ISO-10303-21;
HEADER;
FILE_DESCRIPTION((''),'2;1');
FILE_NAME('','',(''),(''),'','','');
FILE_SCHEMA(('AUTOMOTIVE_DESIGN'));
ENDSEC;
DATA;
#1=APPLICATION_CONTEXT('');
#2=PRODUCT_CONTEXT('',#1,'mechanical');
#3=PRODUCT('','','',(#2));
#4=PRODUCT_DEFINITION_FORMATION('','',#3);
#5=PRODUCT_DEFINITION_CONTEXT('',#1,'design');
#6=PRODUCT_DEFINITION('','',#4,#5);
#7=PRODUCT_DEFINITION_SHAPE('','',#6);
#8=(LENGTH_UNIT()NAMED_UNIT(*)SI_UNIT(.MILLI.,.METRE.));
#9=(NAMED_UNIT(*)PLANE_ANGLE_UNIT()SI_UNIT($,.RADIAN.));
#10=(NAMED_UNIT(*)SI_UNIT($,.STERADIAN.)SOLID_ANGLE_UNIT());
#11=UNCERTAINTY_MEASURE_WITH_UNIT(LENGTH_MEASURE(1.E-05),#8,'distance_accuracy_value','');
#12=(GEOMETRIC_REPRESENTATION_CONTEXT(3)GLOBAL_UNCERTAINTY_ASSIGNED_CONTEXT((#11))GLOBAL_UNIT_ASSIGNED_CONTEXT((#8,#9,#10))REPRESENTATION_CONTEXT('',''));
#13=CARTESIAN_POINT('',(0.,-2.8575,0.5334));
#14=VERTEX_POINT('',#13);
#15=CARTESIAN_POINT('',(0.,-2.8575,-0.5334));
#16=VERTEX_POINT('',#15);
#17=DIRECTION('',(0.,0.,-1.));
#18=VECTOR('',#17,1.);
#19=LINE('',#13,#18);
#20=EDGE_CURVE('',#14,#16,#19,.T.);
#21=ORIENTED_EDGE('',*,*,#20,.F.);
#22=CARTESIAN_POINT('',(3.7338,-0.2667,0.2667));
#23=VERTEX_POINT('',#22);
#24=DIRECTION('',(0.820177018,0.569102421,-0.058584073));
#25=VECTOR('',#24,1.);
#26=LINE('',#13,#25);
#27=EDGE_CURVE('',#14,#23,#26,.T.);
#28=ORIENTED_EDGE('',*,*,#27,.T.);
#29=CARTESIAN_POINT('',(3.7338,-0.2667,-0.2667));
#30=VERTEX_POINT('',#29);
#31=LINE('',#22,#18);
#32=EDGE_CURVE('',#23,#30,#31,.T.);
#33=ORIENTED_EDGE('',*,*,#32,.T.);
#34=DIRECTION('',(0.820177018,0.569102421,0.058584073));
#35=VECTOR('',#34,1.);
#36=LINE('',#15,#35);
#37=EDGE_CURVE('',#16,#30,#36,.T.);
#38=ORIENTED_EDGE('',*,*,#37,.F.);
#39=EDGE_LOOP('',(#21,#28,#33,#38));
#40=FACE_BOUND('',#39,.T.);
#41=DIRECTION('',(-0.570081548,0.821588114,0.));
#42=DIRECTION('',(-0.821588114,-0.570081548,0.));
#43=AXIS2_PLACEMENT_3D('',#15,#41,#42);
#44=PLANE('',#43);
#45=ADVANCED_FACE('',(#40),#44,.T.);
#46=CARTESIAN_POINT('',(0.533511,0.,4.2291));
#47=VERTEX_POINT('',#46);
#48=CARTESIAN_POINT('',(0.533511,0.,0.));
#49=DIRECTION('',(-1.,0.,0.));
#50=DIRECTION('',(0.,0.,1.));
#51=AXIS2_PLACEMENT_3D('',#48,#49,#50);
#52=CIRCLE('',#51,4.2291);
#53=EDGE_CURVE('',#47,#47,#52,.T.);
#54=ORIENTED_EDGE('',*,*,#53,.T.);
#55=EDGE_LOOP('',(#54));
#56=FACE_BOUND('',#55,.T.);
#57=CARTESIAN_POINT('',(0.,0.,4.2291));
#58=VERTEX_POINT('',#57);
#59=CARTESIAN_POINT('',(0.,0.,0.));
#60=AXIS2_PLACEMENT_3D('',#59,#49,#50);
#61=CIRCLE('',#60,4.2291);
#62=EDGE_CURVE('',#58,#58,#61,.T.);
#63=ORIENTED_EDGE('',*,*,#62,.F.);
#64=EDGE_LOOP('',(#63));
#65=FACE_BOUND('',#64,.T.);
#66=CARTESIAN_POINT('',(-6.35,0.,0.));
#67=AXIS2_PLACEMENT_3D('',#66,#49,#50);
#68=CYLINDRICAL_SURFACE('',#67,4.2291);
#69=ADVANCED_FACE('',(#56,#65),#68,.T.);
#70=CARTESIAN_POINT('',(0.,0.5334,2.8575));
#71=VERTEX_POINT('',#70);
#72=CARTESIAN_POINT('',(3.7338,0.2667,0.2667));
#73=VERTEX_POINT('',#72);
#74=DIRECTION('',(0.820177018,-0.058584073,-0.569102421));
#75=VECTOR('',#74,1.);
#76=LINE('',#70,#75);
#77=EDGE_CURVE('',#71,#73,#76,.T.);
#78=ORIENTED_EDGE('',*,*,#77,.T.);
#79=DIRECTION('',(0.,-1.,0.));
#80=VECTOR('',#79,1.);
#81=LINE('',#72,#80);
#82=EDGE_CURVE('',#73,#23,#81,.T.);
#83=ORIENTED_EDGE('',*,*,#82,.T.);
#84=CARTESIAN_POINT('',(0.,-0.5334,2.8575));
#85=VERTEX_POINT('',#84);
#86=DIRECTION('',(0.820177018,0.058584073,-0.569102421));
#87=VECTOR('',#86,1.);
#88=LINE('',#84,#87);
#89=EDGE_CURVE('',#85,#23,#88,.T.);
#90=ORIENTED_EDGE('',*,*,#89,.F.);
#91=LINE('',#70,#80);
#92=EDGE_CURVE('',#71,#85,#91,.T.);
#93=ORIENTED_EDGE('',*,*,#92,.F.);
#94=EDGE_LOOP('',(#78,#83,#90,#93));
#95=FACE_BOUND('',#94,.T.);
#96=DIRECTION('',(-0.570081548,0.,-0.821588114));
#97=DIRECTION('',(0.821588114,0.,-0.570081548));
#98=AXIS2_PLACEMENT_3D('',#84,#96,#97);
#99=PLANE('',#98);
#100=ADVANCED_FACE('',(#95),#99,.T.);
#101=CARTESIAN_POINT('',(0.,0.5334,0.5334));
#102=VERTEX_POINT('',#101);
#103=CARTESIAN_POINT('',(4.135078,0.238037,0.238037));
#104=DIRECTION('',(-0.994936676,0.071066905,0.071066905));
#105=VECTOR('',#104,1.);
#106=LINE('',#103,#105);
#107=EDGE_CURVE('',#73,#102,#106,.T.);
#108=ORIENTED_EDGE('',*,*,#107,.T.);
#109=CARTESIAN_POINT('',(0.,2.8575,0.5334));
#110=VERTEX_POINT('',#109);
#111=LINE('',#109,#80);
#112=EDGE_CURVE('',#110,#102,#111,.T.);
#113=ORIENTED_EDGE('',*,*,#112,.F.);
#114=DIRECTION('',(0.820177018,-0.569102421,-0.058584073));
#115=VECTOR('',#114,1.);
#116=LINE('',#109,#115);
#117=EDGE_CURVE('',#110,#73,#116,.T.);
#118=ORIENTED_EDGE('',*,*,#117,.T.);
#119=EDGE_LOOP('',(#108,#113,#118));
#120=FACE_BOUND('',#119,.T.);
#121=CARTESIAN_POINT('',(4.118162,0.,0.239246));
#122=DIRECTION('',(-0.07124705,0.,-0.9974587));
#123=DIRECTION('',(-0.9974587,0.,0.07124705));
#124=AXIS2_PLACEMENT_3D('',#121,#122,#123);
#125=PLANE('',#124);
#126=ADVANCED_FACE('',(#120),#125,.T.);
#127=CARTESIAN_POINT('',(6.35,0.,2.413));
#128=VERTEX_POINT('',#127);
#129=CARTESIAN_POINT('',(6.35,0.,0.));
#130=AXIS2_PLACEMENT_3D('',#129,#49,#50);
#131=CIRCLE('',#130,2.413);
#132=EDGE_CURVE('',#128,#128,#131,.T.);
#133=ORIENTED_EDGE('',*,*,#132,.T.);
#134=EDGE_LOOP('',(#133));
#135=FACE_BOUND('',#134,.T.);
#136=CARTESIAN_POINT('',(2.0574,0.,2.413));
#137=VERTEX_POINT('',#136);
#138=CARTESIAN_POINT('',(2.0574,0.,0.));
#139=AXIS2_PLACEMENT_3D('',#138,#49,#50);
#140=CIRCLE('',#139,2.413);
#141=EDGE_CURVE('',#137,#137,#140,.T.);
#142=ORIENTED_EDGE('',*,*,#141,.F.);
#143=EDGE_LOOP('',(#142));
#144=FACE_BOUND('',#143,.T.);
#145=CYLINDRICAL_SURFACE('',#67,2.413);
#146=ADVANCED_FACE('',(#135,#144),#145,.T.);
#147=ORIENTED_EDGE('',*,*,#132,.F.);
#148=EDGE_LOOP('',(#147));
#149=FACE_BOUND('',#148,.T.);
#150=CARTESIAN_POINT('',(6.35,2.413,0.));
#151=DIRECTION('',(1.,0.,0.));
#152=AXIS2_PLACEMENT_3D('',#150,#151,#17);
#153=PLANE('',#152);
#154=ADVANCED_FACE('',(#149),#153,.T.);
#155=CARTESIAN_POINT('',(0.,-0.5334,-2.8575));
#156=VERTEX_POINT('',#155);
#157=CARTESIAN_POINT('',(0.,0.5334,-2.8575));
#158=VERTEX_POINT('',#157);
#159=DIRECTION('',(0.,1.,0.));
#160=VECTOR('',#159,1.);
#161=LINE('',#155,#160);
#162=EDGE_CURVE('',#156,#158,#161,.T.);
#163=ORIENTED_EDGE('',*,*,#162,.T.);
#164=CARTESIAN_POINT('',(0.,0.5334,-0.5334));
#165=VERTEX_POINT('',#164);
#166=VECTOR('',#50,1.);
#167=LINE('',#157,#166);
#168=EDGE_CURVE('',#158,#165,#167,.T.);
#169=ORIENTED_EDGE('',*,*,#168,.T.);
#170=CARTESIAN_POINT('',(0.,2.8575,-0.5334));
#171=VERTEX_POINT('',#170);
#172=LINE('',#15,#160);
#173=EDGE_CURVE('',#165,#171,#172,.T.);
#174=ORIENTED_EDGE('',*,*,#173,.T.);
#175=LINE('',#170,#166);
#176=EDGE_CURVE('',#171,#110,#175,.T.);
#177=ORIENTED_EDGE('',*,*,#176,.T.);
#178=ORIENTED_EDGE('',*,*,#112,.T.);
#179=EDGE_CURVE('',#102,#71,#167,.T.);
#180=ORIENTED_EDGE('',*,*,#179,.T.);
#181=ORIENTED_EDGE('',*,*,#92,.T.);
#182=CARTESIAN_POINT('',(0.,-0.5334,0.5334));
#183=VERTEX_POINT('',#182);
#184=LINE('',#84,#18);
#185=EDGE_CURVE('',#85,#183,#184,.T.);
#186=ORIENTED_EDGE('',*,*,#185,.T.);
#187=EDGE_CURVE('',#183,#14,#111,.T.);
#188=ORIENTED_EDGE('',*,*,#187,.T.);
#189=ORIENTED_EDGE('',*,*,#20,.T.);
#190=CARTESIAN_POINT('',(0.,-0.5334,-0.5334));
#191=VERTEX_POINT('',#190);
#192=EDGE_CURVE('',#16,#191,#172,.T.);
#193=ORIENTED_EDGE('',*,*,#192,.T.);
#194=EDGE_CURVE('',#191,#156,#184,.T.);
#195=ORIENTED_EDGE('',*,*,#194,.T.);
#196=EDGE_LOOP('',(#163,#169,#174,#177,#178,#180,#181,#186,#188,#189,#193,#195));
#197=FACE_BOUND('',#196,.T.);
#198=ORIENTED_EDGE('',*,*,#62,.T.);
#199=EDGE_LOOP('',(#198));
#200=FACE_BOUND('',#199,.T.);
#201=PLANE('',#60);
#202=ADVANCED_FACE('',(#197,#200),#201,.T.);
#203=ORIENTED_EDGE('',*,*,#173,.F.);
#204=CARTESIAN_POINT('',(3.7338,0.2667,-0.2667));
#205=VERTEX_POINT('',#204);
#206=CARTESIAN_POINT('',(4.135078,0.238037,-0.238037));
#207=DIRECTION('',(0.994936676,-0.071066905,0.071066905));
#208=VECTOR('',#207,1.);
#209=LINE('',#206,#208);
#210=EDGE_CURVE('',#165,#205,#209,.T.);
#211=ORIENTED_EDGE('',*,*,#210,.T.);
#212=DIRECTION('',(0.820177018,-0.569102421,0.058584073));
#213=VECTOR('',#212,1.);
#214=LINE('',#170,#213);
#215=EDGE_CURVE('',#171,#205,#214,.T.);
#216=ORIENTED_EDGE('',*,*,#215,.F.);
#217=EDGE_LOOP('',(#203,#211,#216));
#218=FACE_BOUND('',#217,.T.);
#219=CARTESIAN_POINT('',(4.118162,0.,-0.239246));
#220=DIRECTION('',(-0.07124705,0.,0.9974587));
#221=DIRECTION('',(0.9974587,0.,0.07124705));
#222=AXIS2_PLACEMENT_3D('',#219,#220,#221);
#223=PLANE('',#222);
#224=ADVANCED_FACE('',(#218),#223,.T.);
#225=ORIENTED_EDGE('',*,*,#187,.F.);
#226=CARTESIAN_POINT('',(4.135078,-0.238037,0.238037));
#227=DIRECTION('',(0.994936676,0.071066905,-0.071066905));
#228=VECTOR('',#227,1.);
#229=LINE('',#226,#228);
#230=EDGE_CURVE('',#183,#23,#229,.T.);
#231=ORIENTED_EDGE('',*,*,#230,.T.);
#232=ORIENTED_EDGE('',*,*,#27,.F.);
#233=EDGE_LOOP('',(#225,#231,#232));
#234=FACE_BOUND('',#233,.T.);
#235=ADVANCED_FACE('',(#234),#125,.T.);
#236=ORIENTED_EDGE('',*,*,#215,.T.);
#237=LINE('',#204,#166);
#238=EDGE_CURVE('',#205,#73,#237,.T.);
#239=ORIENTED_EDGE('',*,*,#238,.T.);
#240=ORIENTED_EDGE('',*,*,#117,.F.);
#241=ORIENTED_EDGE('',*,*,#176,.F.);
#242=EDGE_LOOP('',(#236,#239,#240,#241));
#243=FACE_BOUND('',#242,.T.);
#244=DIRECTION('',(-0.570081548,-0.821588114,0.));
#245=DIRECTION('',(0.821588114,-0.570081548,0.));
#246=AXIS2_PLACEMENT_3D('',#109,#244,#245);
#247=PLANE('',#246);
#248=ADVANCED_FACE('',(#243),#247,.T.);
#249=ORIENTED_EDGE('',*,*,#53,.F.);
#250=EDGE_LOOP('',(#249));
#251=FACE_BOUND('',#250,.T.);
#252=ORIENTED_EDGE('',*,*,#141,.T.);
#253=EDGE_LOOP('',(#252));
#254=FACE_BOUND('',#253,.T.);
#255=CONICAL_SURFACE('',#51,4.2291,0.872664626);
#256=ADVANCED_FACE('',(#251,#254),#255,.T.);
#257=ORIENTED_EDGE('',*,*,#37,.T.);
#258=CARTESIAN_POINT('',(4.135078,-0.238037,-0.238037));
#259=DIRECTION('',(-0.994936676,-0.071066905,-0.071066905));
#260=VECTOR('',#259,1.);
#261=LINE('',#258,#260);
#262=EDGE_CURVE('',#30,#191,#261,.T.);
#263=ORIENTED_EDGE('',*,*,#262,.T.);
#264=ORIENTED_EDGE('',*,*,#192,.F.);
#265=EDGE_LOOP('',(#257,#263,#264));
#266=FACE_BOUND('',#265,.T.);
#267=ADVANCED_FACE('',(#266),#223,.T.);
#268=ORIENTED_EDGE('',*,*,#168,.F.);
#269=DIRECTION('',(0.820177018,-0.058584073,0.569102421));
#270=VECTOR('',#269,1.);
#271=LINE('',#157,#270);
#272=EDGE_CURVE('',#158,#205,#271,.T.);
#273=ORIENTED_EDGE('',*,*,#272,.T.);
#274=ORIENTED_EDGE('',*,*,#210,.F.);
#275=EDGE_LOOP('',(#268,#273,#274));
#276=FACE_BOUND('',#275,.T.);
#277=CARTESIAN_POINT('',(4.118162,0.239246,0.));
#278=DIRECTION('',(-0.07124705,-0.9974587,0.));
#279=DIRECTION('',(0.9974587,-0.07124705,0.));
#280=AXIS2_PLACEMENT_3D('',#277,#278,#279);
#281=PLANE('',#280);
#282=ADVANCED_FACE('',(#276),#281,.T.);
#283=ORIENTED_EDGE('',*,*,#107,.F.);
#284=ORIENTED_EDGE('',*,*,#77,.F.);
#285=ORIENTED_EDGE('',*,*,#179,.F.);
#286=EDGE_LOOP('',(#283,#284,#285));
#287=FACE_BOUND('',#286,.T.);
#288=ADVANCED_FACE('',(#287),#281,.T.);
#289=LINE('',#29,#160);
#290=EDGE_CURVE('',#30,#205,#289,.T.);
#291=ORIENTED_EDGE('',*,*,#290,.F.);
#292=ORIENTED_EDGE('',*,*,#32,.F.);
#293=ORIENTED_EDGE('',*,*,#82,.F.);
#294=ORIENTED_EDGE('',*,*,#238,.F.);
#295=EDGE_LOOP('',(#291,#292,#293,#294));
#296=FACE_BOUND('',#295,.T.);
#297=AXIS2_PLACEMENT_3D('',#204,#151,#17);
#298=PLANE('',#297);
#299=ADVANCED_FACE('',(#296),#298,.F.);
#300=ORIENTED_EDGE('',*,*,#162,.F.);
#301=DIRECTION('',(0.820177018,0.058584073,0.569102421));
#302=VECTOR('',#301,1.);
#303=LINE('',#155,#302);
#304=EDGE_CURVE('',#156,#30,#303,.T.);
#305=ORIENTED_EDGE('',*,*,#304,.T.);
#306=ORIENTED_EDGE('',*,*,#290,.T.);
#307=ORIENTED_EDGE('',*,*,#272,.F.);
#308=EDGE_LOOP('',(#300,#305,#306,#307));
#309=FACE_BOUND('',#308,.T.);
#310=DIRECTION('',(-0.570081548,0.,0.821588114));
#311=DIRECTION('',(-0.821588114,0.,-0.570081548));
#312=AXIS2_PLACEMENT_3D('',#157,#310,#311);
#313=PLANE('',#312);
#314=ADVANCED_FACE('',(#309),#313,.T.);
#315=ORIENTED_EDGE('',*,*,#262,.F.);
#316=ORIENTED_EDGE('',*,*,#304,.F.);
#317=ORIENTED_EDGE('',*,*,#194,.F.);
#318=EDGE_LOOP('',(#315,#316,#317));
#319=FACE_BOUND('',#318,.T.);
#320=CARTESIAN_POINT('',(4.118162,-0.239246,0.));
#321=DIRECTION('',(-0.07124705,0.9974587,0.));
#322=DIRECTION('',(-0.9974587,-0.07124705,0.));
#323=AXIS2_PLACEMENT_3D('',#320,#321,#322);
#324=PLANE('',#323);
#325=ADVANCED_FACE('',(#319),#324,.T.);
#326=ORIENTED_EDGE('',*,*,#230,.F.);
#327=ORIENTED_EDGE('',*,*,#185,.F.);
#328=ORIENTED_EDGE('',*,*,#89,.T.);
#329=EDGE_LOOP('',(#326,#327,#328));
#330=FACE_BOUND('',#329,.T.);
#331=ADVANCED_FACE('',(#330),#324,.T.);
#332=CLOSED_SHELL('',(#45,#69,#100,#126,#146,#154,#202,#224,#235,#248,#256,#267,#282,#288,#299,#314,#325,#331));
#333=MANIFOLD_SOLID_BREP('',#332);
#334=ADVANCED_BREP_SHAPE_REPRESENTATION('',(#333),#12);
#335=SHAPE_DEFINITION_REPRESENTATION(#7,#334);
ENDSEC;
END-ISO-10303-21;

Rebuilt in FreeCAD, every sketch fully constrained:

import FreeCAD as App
import Part
import Sketcher
Q = App.Units.Quantity

doc = App.newDocument("Part")
params = doc.addObject("Spreadsheet::Sheet", "Params")
for row, (alias, value) in enumerate([
    ("sketch1_width", "0.25 in"),
    ("sketch1_width2", "0.169 in"),
    ("sketch1_height", "0.095 in"),
    ("revolution_angle", "360 deg"),
    ("sketch2_width", "0.225 in"),
    ("sketch2_height", "0.042 in"),
    ("sketch3_width", "0.021 in"),
], start=1):
    params.set(f"A{row}", alias)
    params.set(f"B{row}", "=" + value)
    params.setAlias(f"B{row}", alias)

body = doc.addObject("PartDesign::Body", "Body")

# Sketch on XY plane
sketch1 = body.newObject("Sketcher::SketchObject", "Sketch")
sketch1.AttachmentSupport = (doc.getObject("XY_Plane"), [""])
sketch1.MapMode = "FlatFace"
sketch1.addGeometry(Part.LineSegment(App.Vector(0, 4.2, 0), App.Vector(0, 0, 0)), False)
sketch1.addGeometry(Part.LineSegment(App.Vector(0, 0, 0), App.Vector(6.3, 0, 0)), False)
sketch1.addGeometry(Part.LineSegment(App.Vector(6.3, 0, 0), App.Vector(6.3, 2.4, 0)), False)
sketch1.addGeometry(Part.LineSegment(App.Vector(6.3, 2.4, 0), App.Vector(2.1, 2.4, 0)), False)
sketch1.addGeometry(Part.LineSegment(App.Vector(2.1, 2.4, 0), App.Vector(0.5, 4.2, 0)), False)
sketch1.addGeometry(Part.LineSegment(App.Vector(0.5, 4.2, 0), App.Vector(0, 4.2, 0)), False)
sketch1.addConstraint(Sketcher.Constraint("Coincident", 0, 2, 1, 1))
sketch1.addConstraint(Sketcher.Constraint("Coincident", 1, 2, 2, 1))
sketch1.addConstraint(Sketcher.Constraint("Coincident", 2, 2, 3, 1))
sketch1.addConstraint(Sketcher.Constraint("Coincident", 3, 2, 4, 1))
sketch1.addConstraint(Sketcher.Constraint("Coincident", 4, 2, 5, 1))
sketch1.addConstraint(Sketcher.Constraint("Coincident", 5, 2, 0, 1))
sketch1.addConstraint(Sketcher.Constraint("Vertical", 0))
sketch1.addConstraint(Sketcher.Constraint("Horizontal", 1))
sketch1.addConstraint(Sketcher.Constraint("Vertical", 2))
sketch1.addConstraint(Sketcher.Constraint("Horizontal", 3))
sketch1.addConstraint(Sketcher.Constraint("Horizontal", 5))
sketch1.addConstraint(Sketcher.Constraint("Coincident", 0, 2, -1, 1))
sketch1.addConstraint(Sketcher.Constraint("Angle", 4, Q("130 deg")))
sketch1.addConstraint(Sketcher.Constraint("DistanceX", 1, 1, 1, 2, Q("0.25 in")))
sketch1.addConstraint(Sketcher.Constraint("DistanceX", 3, 2, 3, 1, Q("0.169 in")))
sketch1.addConstraint(Sketcher.Constraint("DistanceY", 2, 1, 2, 2, Q("0.095 in")))
sketch1.addConstraint(Sketcher.Constraint("DistanceY", 0, 2, 0, 1, Q("0.1665 in")))
sketch1.setExpression("Constraints[13]", "Params.sketch1_width")
sketch1.setExpression("Constraints[14]", "Params.sketch1_width2")
sketch1.setExpression("Constraints[15]", "Params.sketch1_height")
revolution = body.newObject("PartDesign::Revolution", "Revolution")
revolution.Profile = sketch1
revolution.ReferenceAxis = (sketch1, ["H_Axis"])
revolution.setExpression("Angle", "Params.revolution_angle")

# Sketch on YZ plane
sketch2 = body.newObject("Sketcher::SketchObject", "Sketch001")
sketch2.AttachmentSupport = (doc.getObject("YZ_Plane"), [""])
sketch2.MapMode = "FlatFace"
sketch2.addGeometry(Part.LineSegment(App.Vector(2.9, 0.5, 0), App.Vector(2.9, -0.5, 0)), False)
sketch2.addGeometry(Part.LineSegment(App.Vector(2.9, -0.5, 0), App.Vector(-2.9, -0.5, 0)), False)
sketch2.addGeometry(Part.LineSegment(App.Vector(-2.9, -0.5, 0), App.Vector(-2.9, 0.5, 0)), False)
sketch2.addGeometry(Part.LineSegment(App.Vector(-2.9, 0.5, 0), App.Vector(2.9, 0.5, 0)), False)
sketch2.addConstraint(Sketcher.Constraint("Coincident", 0, 2, 1, 1))
sketch2.addConstraint(Sketcher.Constraint("Coincident", 1, 2, 2, 1))
sketch2.addConstraint(Sketcher.Constraint("Coincident", 2, 2, 3, 1))
sketch2.addConstraint(Sketcher.Constraint("Coincident", 3, 2, 0, 1))
sketch2.addConstraint(Sketcher.Constraint("Vertical", 0))
sketch2.addConstraint(Sketcher.Constraint("Horizontal", 1))
sketch2.addConstraint(Sketcher.Constraint("Vertical", 2))
sketch2.addConstraint(Sketcher.Constraint("Horizontal", 3))
sketch2.addConstraint(Sketcher.Constraint("Symmetric", 0, 2, 2, 2, -1, 1))
sketch2.addConstraint(Sketcher.Constraint("DistanceX", 1, 2, 1, 1, Q("0.225 in")))
sketch2.addConstraint(Sketcher.Constraint("DistanceY", 0, 2, 0, 1, Q("0.042 in")))
sketch2.setExpression("Constraints[9]", "Params.sketch2_width")
sketch2.setExpression("Constraints[10]", "Params.sketch2_height")

# Sketch on YZ plane
sketch3 = body.newObject("Sketcher::SketchObject", "Sketch002")
sketch3.AttachmentSupport = (doc.getObject("YZ_Plane"), [""])
sketch3.MapMode = "FlatFace"
sketch3.AttachmentOffset = App.Placement(App.Vector(0, 0, 0.147 * 25.4), App.Rotation())
sketch3.addGeometry(Part.LineSegment(App.Vector(0.3, 0.3, 0), App.Vector(0.3, -0.3, 0)), False)
sketch3.addGeometry(Part.LineSegment(App.Vector(0.3, -0.3, 0), App.Vector(-0.3, -0.3, 0)), False)
sketch3.addGeometry(Part.LineSegment(App.Vector(-0.3, -0.3, 0), App.Vector(-0.3, 0.3, 0)), False)
sketch3.addGeometry(Part.LineSegment(App.Vector(-0.3, 0.3, 0), App.Vector(0.3, 0.3, 0)), False)
sketch3.addConstraint(Sketcher.Constraint("Coincident", 0, 2, 1, 1))
sketch3.addConstraint(Sketcher.Constraint("Coincident", 1, 2, 2, 1))
sketch3.addConstraint(Sketcher.Constraint("Coincident", 2, 2, 3, 1))
sketch3.addConstraint(Sketcher.Constraint("Coincident", 3, 2, 0, 1))
sketch3.addConstraint(Sketcher.Constraint("Vertical", 0))
sketch3.addConstraint(Sketcher.Constraint("Horizontal", 1))
sketch3.addConstraint(Sketcher.Constraint("Vertical", 2))
sketch3.addConstraint(Sketcher.Constraint("Horizontal", 3))
sketch3.addConstraint(Sketcher.Constraint("Symmetric", 0, 2, 2, 2, -1, 1))
sketch3.addConstraint(Sketcher.Constraint("Equal", 3, 0))
sketch3.addConstraint(Sketcher.Constraint("DistanceX", 1, 2, 1, 1, Q("0.021 in")))
sketch3.setExpression("Constraints[10]", "Params.sketch3_width")

subtractiveloft = body.newObject("PartDesign::SubtractiveLoft", "SubtractiveLoft")
subtractiveloft.Profile = sketch2
subtractiveloft.Sections = [sketch3]
doc.recompute()

polarpattern = body.newObject("PartDesign::PolarPattern", "PolarPattern")
polarpattern.Originals = [subtractiveloft]
polarpattern.Axis = (doc.getObject("X_Axis"), [""])
polarpattern.Angle = 90
polarpattern.Occurrences = 2
body.Tip = polarpattern

doc.recompute()
